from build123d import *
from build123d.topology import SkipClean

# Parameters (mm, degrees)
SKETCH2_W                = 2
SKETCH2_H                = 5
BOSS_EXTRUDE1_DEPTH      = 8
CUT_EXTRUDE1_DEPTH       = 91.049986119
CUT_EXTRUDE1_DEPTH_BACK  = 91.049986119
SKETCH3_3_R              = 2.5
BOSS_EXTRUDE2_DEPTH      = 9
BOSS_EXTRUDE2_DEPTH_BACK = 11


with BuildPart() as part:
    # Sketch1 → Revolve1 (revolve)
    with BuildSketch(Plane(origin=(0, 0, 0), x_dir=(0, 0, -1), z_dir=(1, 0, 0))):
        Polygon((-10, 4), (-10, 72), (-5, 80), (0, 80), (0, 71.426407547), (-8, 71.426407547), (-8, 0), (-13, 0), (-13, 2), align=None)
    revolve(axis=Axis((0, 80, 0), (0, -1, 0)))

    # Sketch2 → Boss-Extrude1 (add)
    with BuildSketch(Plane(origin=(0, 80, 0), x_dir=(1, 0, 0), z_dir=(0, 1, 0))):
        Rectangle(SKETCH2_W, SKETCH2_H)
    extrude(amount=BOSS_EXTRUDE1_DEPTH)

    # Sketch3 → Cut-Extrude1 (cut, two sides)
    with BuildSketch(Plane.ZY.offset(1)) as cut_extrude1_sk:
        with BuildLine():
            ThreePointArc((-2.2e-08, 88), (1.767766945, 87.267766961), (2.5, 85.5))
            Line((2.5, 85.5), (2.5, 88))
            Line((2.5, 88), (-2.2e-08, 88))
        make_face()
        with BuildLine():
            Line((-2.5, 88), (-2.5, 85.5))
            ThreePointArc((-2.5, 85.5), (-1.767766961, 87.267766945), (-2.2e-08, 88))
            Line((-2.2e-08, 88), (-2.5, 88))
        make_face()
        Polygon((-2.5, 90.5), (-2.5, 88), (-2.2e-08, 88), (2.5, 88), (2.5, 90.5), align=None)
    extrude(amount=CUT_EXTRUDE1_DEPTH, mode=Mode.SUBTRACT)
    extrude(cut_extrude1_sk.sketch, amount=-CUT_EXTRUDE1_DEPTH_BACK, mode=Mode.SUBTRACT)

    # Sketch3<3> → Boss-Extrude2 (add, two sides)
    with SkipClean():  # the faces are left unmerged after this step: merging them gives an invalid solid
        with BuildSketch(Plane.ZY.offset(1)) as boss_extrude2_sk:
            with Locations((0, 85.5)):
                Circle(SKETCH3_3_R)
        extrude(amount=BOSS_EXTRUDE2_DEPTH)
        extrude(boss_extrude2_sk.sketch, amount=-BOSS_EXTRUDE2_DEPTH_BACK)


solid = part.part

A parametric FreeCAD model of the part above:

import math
import FreeCAD as App
import Part
import Sketcher
from FreeCAD import Vector
Q = App.Units.Quantity

doc = App.newDocument("Part")
params = doc.addObject("Spreadsheet::Sheet", "Params")
for row, (alias, value) in enumerate([
    ("sketch1_width", "68 mm"),
    ("sketch1_width2", "2 mm"),
    ("sketch1_height", "5 mm"),
    ("sketch1_height2", "8 mm"),
    ("revolution_angle", "360 deg"),
    ("sketch2_width", "2 mm"),
    ("sketch2_height", "5 mm"),
    ("pad1_length", "8 mm"),
    ("sketch3_radius", "2.5 mm"),
    ("sketch4_diameter", "5 mm"),
    ("pad2_length", "9 mm"),
    ("pad2_length2", "11 mm"),
], start=1):
    params.set(f"A{row}", alias)
    params.set(f"B{row}", "=" + value)
    params.setAlias(f"B{row}", alias)

body = doc.addObject("PartDesign::Body", "Body")

# Sketch on YZ plane
sketch1 = doc.addObject("Sketcher::SketchObject", "Sketch")
body.addObject(sketch1)
sketch1.AttachmentSupport = (doc.YZ_Plane, [""])
sketch1.MapMode = "FlatFace"
sketch1.addGeometry([
    Part.LineSegment(Vector(72, 10, 0), Vector(4, 10, 0)),  # 0
    Part.LineSegment(Vector(4, 10, 0), Vector(2, 13, 0)),  # 1
    Part.LineSegment(Vector(2, 13, 0), Vector(0, 13, 0)),  # 2
    Part.LineSegment(Vector(0, 13, 0), Vector(0, 8, 0)),  # 3
    Part.LineSegment(Vector(0, 8, 0), Vector(71.4, 8, 0)),  # 4
    Part.LineSegment(Vector(71.4, 8, 0), Vector(71.4, 0, 0)),  # 5
    Part.LineSegment(Vector(71.4, 0, 0), Vector(80, 0, 0)),  # 6
    Part.LineSegment(Vector(80, 0, 0), Vector(80, 5, 0)),  # 7
    Part.LineSegment(Vector(80, 5, 0), Vector(72, 10, 0)),  # 8
], False)
sketch1.addConstraint([
    Sketcher.Constraint("Coincident", 0, 2, 1, 1),
    Sketcher.Constraint("Coincident", 1, 2, 2, 1),
    Sketcher.Constraint("Coincident", 2, 2, 3, 1),
    Sketcher.Constraint("Coincident", 3, 2, 4, 1),
    Sketcher.Constraint("Coincident", 4, 2, 5, 1),
    Sketcher.Constraint("Coincident", 5, 2, 6, 1),
    Sketcher.Constraint("Coincident", 6, 2, 7, 1),
    Sketcher.Constraint("Coincident", 7, 2, 8, 1),
    Sketcher.Constraint("Coincident", 8, 2, 0, 1),
    Sketcher.Constraint("Horizontal", 0),
    Sketcher.Constraint("Horizontal", 2),
    Sketcher.Constraint("Vertical", 3),
    Sketcher.Constraint("Horizontal", 4),
    Sketcher.Constraint("Vertical", 5),
    Sketcher.Constraint("Horizontal", 6),
    Sketcher.Constraint("Vertical", 7),
    Sketcher.Constraint("PointOnObject", 2, 2, -2),
    Sketcher.Constraint("PointOnObject", 5, 2, -1),
    Sketcher.Constraint("Equal", 3, 7),
    Sketcher.Constraint("DistanceX", 0, 2, 0, 1, Q("68 mm")),
    Sketcher.Constraint("DistanceX", 2, 2, 2, 1, Q("2 mm")),
    Sketcher.Constraint("DistanceY", 3, 2, 3, 1, Q("5 mm")),
    Sketcher.Constraint("DistanceY", 5, 2, 5, 1, Q("8 mm")),
    Sketcher.Constraint("DistanceX", -1, 1, 0, 2, Q("4 mm")),
    Sketcher.Constraint("DistanceY", -1, 1, 0, 2, Q("10 mm")),
    Sketcher.Constraint("DistanceX", -1, 1, 6, 2, Q("80 mm")),
    Sketcher.Constraint("DistanceX", 4, 1, 4, 2, Q("71.426408 mm")),
])
sketch1.setExpression("Constraints[19]", "Params.sketch1_width")
sketch1.setExpression("Constraints[20]", "Params.sketch1_width2")
sketch1.setExpression("Constraints[21]", "Params.sketch1_height")
sketch1.setExpression("Constraints[22]", "Params.sketch1_height2")
revolution = doc.addObject("PartDesign::Revolution", "Revolution")
body.addObject(revolution)
revolution.Profile = sketch1
revolution.ReferenceAxis = (sketch1, ["H_Axis"])
revolution.setExpression("Angle", "Params.revolution_angle")

# Sketch on XZ plane
sketch2 = doc.addObject("Sketcher::SketchObject", "Sketch001")
body.addObject(sketch2)
sketch2.AttachmentSupport = (doc.XZ_Plane, [""])
sketch2.MapMode = "FlatFace"
sketch2.AttachmentOffset = App.Placement(Vector(0, 0, -80), App.Rotation())
sketch2.addGeometry([
    Part.LineSegment(Vector(-1, -2.5, 0), Vector(-1, 2.5, 0)),
    Part.LineSegment(Vector(-1, 2.5, 0), Vector(1, 2.5, 0)),
    Part.LineSegment(Vector(1, 2.5, 0), Vector(1, -2.5, 0)),
    Part.LineSegment(Vector(1, -2.5, 0), Vector(-1, -2.5, 0)),
], False)
sketch2.addConstraint([
    Sketcher.Constraint("Coincident", 0, 2, 1, 1),
    Sketcher.Constraint("Coincident", 1, 2, 2, 1),
    Sketcher.Constraint("Coincident", 2, 2, 3, 1),
    Sketcher.Constraint("Coincident", 3, 2, 0, 1),
    Sketcher.Constraint("Vertical", 0),
    Sketcher.Constraint("Horizontal", 1),
    Sketcher.Constraint("Vertical", 2),
    Sketcher.Constraint("Horizontal", 3),
    Sketcher.Constraint("Symmetric", 0, 2, 2, 2, -1, 1),
    Sketcher.Constraint("DistanceX", 1, 1, 1, 2, Q("2 mm")),
    Sketcher.Constraint("DistanceY", 0, 1, 0, 2, Q("5 mm")),
])
sketch2.setExpression("Constraints[9]", "Params.sketch2_width")
sketch2.setExpression("Constraints[10]", "Params.sketch2_height")
pad1 = doc.addObject("PartDesign::Pad", "Pad")
body.addObject(pad1)
pad1.Profile = sketch2
pad1.setExpression("Length", "Params.pad1_length")
pad1.Reversed = True

# Sketch on YZ plane
sketch3 = doc.addObject("Sketcher::SketchObject", "Sketch002")
body.addObject(sketch3)
sketch3.AttachmentSupport = (doc.YZ_Plane, [""])
sketch3.MapMode = "FlatFace"
sketch3.AttachmentOffset = App.Placement(Vector(0, 0, -1), App.Rotation())
sketch3.addGeometry([
    Part.ArcOfCircle(Part.Circle(Vector(85.5, 0, 0), Vector(0, 0, 1), 2.5), math.radians(0), math.radians(90)),  # 0
    Part.LineSegment(Vector(85.5, 2.5, 0), Vector(90.5, 2.5, 0)),  # 1
    Part.LineSegment(Vector(90.5, 2.5, 0), Vector(90.5, -2.5, 0)),  # 2
    Part.LineSegment(Vector(90.5, -2.5, 0), Vector(85.5, -2.5, 0)),  # 3
    Part.ArcOfCircle(Part.Circle(Vector(85.5, 0, 0), Vector(0, 0, 1), 2.5), math.radians(-90), math.radians(0)),  # 4
], False)
sketch3.addConstraint([
    Sketcher.Constraint("Tangent", 0, 2, 1, 1),
    Sketcher.Constraint("Coincident", 1, 2, 2, 1),
    Sketcher.Constraint("Coincident", 2, 2, 3, 1),
    Sketcher.Constraint("Tangent", 3, 2, 4, 1),
    Sketcher.Constraint("Tangent", 4, 2, 0, 1),
    Sketcher.Constraint("Horizontal", 1),
    Sketcher.Constraint("Vertical", 2),
    Sketcher.Constraint("Horizontal", 3),
    Sketcher.Constraint("Equal", 0, 4),
    Sketcher.Constraint("PointOnObject", 0, 3, -1),
    Sketcher.Constraint("PointOnObject", 4, 2, -1),
    Sketcher.Constraint("Equal", 3, 2),
    Sketcher.Constraint("Radius", 0, Q("2.5 mm")),
    Sketcher.Constraint("DistanceX", -1, 1, 4, 2, Q("88 mm")),
])
sketch3.setExpression("Constraints[12]", "Params.sketch3_radius")
pocket1 = doc.addObject("PartDesign::Pocket", "Pocket")
body.addObject(pocket1)
pocket1.Profile = sketch3
pocket1.Type = "ThroughAll"
pocket1.Midplane = True

# Sketch on YZ plane
sketch4 = doc.addObject("Sketcher::SketchObject", "Sketch003")
body.addObject(sketch4)
sketch4.AttachmentSupport = (doc.YZ_Plane, [""])
sketch4.MapMode = "FlatFace"
sketch4.AttachmentOffset = App.Placement(Vector(0, 0, -1), App.Rotation())
sketch4.addGeometry(Part.Circle(Vector(85.5, 0, 0), Vector(0, 0, 1), 2.5), False)
sketch4.addConstraint([
    Sketcher.Constraint("PointOnObject", 0, 3, -1),
    Sketcher.Constraint("Diameter", 0, Q("5 mm")),
    Sketcher.Constraint("DistanceX", -1, 1, 0, 3, Q("85.5 mm")),
])
sketch4.setExpression("Constraints[1]", "Params.sketch4_diameter")
pad2 = doc.addObject("PartDesign::Pad", "Pad001")
body.addObject(pad2)
pad2.Profile = sketch4
pad2.Type = "TwoLengths"
pad2.setExpression("Length", "Params.pad2_length")
pad2.setExpression("Length2", "Params.pad2_length2")
pad2.Reversed = True

doc.recompute()
